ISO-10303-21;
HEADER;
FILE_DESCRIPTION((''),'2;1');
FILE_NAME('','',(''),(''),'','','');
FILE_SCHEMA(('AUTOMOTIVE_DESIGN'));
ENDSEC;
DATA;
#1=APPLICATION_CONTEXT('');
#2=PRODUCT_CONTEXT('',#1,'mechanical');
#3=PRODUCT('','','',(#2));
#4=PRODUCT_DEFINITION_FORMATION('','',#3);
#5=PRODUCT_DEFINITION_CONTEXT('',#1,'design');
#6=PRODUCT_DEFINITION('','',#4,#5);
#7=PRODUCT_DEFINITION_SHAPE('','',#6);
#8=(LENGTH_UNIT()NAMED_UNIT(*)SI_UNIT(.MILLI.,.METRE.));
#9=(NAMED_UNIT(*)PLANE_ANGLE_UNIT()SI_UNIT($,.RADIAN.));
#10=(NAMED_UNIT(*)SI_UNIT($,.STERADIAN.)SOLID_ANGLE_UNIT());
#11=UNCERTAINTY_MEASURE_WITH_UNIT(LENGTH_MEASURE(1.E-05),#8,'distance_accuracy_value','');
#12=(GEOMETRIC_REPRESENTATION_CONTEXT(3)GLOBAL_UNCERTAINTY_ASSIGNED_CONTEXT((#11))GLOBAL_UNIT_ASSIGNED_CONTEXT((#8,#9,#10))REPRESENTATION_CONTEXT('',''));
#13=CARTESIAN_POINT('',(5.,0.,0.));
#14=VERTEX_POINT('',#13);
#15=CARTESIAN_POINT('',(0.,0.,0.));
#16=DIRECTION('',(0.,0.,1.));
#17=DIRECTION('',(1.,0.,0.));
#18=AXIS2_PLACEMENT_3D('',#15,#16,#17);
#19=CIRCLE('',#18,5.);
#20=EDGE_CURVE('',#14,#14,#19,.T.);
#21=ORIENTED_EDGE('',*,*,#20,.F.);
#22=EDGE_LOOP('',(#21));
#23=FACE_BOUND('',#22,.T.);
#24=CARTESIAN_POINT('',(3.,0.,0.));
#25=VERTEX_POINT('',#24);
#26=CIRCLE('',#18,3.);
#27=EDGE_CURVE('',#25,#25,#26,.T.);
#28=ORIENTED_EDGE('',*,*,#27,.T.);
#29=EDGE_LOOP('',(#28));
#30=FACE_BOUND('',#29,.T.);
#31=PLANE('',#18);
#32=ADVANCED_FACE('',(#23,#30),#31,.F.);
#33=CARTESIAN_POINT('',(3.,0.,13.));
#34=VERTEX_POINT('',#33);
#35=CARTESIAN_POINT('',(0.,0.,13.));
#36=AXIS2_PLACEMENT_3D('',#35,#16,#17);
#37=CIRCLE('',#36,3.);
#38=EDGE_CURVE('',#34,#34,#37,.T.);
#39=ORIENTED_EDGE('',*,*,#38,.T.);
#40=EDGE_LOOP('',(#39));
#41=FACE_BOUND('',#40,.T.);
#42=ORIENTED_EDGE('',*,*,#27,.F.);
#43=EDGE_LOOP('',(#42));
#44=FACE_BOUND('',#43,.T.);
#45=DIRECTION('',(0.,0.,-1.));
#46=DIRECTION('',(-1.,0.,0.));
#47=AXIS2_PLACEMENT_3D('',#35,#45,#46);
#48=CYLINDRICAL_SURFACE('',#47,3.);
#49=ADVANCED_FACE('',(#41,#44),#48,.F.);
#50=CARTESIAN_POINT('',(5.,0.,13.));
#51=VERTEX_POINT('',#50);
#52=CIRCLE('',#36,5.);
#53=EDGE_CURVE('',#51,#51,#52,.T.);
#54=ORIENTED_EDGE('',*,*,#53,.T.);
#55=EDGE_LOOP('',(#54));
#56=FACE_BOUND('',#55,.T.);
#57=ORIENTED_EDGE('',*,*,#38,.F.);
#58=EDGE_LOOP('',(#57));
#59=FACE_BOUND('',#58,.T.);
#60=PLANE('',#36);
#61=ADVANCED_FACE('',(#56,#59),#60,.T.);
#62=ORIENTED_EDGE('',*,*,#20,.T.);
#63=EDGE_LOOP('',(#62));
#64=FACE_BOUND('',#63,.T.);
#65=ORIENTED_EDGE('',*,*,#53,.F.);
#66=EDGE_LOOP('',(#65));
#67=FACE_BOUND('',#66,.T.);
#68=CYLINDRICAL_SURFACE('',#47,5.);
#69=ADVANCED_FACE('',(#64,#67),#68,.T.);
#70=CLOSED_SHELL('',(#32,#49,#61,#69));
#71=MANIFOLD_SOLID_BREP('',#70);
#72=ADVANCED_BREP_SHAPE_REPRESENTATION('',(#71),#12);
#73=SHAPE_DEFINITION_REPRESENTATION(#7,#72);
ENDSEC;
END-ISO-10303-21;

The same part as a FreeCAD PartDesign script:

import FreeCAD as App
import Part
import Sketcher
Q = App.Units.Quantity

doc = App.newDocument("Part")
body = doc.addObject("PartDesign::Body", "Body")

sketch1 = doc.addObject("Sketcher::SketchObject", "Sketch")
body.addObject(sketch1)
sketch1.AttachmentSupport = (doc.XY_Plane, [""])
sketch1.MapMode = "FlatFace"
sketch1.addGeometry(Part.Circle(App.Vector(0, 0, 0), App.Vector(0, 0, 1), 5), False)
sketch1.addGeometry(Part.Circle(App.Vector(0, 0, 0), App.Vector(0, 0, 1), 3), False)
sketch1.addConstraint(Sketcher.Constraint("Coincident", 0, 3, -1, 1))
sketch1.addConstraint(Sketcher.Constraint("Coincident", 1, 3, -1, 1))
sketch1.addConstraint(Sketcher.Constraint("Diameter", 0, Q("10 mm")))
sketch1.addConstraint(Sketcher.Constraint("Diameter", 1, Q("6 mm")))
pad1 = doc.addObject("PartDesign::Pad", "Pad")
body.addObject(pad1)
pad1.Profile = sketch1
pad1.Length = 13

doc.recompute()
